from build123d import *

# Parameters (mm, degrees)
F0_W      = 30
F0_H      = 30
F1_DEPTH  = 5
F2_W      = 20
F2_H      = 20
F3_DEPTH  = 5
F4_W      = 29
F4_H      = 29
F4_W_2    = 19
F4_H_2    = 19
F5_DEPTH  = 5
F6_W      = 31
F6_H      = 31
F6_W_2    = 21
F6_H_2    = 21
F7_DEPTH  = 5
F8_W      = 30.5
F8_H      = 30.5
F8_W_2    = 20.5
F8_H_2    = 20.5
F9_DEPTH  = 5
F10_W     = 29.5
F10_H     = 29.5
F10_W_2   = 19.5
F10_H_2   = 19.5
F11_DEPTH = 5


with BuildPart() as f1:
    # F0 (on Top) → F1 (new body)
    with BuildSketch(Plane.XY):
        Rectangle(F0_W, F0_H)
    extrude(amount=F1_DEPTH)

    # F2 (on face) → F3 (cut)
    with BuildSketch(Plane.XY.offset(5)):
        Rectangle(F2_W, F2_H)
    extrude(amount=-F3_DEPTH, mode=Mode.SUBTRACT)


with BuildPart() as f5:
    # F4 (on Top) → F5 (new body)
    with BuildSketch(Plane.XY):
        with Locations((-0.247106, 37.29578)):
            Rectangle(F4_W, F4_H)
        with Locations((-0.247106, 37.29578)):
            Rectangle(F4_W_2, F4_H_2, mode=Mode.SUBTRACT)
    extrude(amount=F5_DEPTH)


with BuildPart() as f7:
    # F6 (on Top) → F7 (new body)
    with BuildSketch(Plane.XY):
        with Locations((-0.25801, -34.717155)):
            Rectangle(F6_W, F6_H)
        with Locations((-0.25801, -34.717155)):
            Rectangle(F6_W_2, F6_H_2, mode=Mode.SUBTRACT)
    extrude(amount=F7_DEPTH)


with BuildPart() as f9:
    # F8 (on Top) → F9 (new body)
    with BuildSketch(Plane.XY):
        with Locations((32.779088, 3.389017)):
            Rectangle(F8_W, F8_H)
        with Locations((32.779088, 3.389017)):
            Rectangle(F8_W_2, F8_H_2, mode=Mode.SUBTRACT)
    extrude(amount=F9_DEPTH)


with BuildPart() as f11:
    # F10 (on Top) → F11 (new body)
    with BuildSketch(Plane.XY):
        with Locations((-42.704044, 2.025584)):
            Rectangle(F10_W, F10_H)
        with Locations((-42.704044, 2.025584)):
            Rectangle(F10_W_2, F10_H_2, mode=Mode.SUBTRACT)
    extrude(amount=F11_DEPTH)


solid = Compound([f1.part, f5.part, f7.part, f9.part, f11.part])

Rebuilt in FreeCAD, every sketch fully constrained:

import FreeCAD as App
import Part
import Sketcher

V = App.Vector
Q = App.Units.Quantity


def add_polygon(sketch, points):
    """Adds a closed chain of lines whose ends are joined by coincident constraints."""
    first, n = sketch.GeometryCount, len(points)
    for a, b in zip(points, points[1:] + points[:1]):
        sketch.addGeometry(Part.LineSegment(App.Vector(*a, 0), App.Vector(*b, 0)), False)
    for i in range(n):
        sketch.addConstraint(Sketcher.Constraint("Coincident", first + i, 2, first + (i + 1) % n, 1))

doc = App.newDocument("Part")
params = doc.addObject("Spreadsheet::Sheet", "Params")
for row, (alias, value) in enumerate([
    ("sketch1_width", "30 mm"),
    ("pad1_length", "5 mm"),
    ("sketch2_width", "20 mm"),
    ("pocket1_length", "5 mm"),
    ("sketch3_width", "29 mm"),
    ("sketch3_width2", "19 mm"),
    ("pad2_length", "5 mm"),
    ("sketch4_width", "31 mm"),
    ("sketch4_width2", "21 mm"),
    ("pad3_length", "5 mm"),
    ("sketch5_width", "30.5 mm"),
    ("sketch5_width2", "20.5 mm"),
    ("pad4_length", "5 mm"),
    ("sketch6_width", "29.5 mm"),
    ("sketch6_width2", "19.5 mm"),
    ("pad5_length", "5 mm"),
], start=1):
    params.set(f"A{row}", alias)
    params.set(f"B{row}", "=" + value)
    params.setAlias(f"B{row}", alias)

body = doc.addObject("PartDesign::Body", "Body")

# Sketch on XY plane
sketch1 = body.newObject("Sketcher::SketchObject", "Sketch")
sketch1.AttachmentSupport = (doc.getObject("XY_Plane"), [""])
sketch1.MapMode = "FlatFace"
add_polygon(sketch1, [(-15, 15), (-15, -15), (15, -15), (15, 15)])  # lines 0-3
sketch1.addConstraint([
    Sketcher.Constraint("Vertical", 0),
    Sketcher.Constraint("Horizontal", 1),
    Sketcher.Constraint("Vertical", 2),
    Sketcher.Constraint("Horizontal", 3),
    Sketcher.Constraint("Symmetric", 0, 2, 2, 2, -1, 1),
    Sketcher.Constraint("Equal", 3, 0),
    Sketcher.Constraint("DistanceX", 1, 1, 1, 2, Q("30 mm")),
])
sketch1.setExpression("Constraints[10]", "Params.sketch1_width")
pad1 = body.newObject("PartDesign::Pad", "Pad")
pad1.Profile = sketch1
pad1.setExpression("Length", "Params.pad1_length")

# Sketch on XY plane
sketch2 = body.newObject("Sketcher::SketchObject", "Sketch001")
sketch2.AttachmentSupport = (doc.getObject("XY_Plane"), [""])
sketch2.MapMode = "FlatFace"
sketch2.AttachmentOffset = App.Placement(V(0, 0, 5), App.Rotation())
add_polygon(sketch2, [(-10, 10), (-10, -10), (10, -10), (10, 10)])  # lines 0-3
sketch2.addConstraint([
    Sketcher.Constraint("Vertical", 0),
    Sketcher.Constraint("Horizontal", 1),
    Sketcher.Constraint("Vertical", 2),
    Sketcher.Constraint("Horizontal", 3),
    Sketcher.Constraint("Symmetric", 0, 2, 2, 2, -1, 1),
    Sketcher.Constraint("Equal", 3, 0),
    Sketcher.Constraint("DistanceX", 1, 1, 1, 2, Q("20 mm")),
])
sketch2.setExpression("Constraints[10]", "Params.sketch2_width")
pocket1 = body.newObject("PartDesign::Pocket", "Pocket")
pocket1.Profile = sketch2
pocket1.setExpression("Length", "Params.pocket1_length")
body2 = doc.addObject("PartDesign::Body", "Body001")

# Sketch on XY plane
sketch3 = body2.newObject("Sketcher::SketchObject", "Sketch002")
sketch3.AttachmentSupport = (doc.getObject("XY_Plane001"), [""])
sketch3.MapMode = "FlatFace"
add_polygon(sketch3, [(-15, 52), (-15, 23), (14, 23), (14, 52)])  # lines 0-3
add_polygon(sketch3, [(9, 28), (-10, 28), (-10, 47), (9, 47)])  # lines 4-7
sketch3.addConstraint([
    Sketcher.Constraint("Vertical", 0),
    Sketcher.Constraint("Horizontal", 1),
    Sketcher.Constraint("Vertical", 2),
    Sketcher.Constraint("Horizontal", 3),
    Sketcher.Constraint("Horizontal", 4),
    Sketcher.Constraint("Vertical", 5),
    Sketcher.Constraint("Horizontal", 6),
    Sketcher.Constraint("Vertical", 7),
    Sketcher.Constraint("Equal", 3, 0),
    Sketcher.Constraint("Equal", 6, 5),
    Sketcher.Constraint("DistanceX", 1, 1, 1, 2, Q("29 mm")),
    Sketcher.Constraint("DistanceX", 4, 2, 4, 1, Q("19 mm")),
    Sketcher.Constraint("DistanceX", 0, 2, 4, 2, Q("5 mm")),
    Sketcher.Constraint("DistanceY", 0, 2, 4, 2, Q("5 mm")),
    Sketcher.Constraint("DistanceY", -1, 1, 0, 2, Q("22.79578 mm")),
    Sketcher.Constraint("DistanceX", 0, 2, -1, 1, Q("14.747106 mm")),
])
sketch3.setExpression("Constraints[18]", "Params.sketch3_width")
sketch3.setExpression("Constraints[19]", "Params.sketch3_width2")
pad2 = body2.newObject("PartDesign::Pad", "Pad001")
pad2.Profile = sketch3
pad2.setExpression("Length", "Params.pad2_length")
body3 = doc.addObject("PartDesign::Body", "Body002")

# Sketch on XY plane
sketch4 = body3.newObject("Sketcher::SketchObject", "Sketch003")
sketch4.AttachmentSupport = (doc.getObject("XY_Plane002"), [""])
sketch4.MapMode = "FlatFace"
add_polygon(sketch4, [(-16, -19), (-16, -50), (15, -50), (15, -19)])  # lines 0-3
add_polygon(sketch4, [(10, -45), (-11, -45), (-11, -24), (10, -24)])  # lines 4-7
sketch4.addConstraint([
    Sketcher.Constraint("Vertical", 0),
    Sketcher.Constraint("Horizontal", 1),
    Sketcher.Constraint("Vertical", 2),
    Sketcher.Constraint("Horizontal", 3),
    Sketcher.Constraint("Horizontal", 4),
    Sketcher.Constraint("Vertical", 5),
    Sketcher.Constraint("Horizontal", 6),
    Sketcher.Constraint("Vertical", 7),
    Sketcher.Constraint("Equal", 3, 0),
    Sketcher.Constraint("Equal", 6, 5),
    Sketcher.Constraint("DistanceX", 1, 1, 1, 2, Q("31 mm")),
    Sketcher.Constraint("DistanceX", 4, 2, 4, 1, Q("21 mm")),
    Sketcher.Constraint("DistanceX", 0, 2, 4, 2, Q("5 mm")),
    Sketcher.Constraint("DistanceY", 0, 2, 4, 2, Q("5 mm")),
    Sketcher.Constraint("DistanceX", 0, 2, -1, 1, Q("15.75801 mm")),
    Sketcher.Constraint("DistanceY", 0, 2, -1, 1, Q("50.217155 mm")),
])
sketch4.setExpression("Constraints[18]", "Params.sketch4_width")
sketch4.setExpression("Constraints[19]", "Params.sketch4_width2")
pad3 = body3.newObject("PartDesign::Pad", "Pad002")
pad3.Profile = sketch4
pad3.setExpression("Length", "Params.pad3_length")
body4 = doc.addObject("PartDesign::Body", "Body003")

# Sketch on XY plane
sketch5 = body4.newObject("Sketcher::SketchObject", "Sketch004")
sketch5.AttachmentSupport = (doc.getObject("XY_Plane003"), [""])
sketch5.MapMode = "FlatFace"
add_polygon(sketch5, [(18, 19), (18, -12), (48, -12), (48, 19)])  # lines 0-3
add_polygon(sketch5, [(43, -7), (23, -7), (23, 14), (43, 14)])  # lines 4-7
sketch5.addConstraint([
    Sketcher.Constraint("Vertical", 0),
    Sketcher.Constraint("Horizontal", 1),
    Sketcher.Constraint("Vertical", 2),
    Sketcher.Constraint("Horizontal", 3),
    Sketcher.Constraint("Horizontal", 4),
    Sketcher.Constraint("Vertical", 5),
    Sketcher.Constraint("Horizontal", 6),
    Sketcher.Constraint("Vertical", 7),
    Sketcher.Constraint("Equal", 3, 0),
    Sketcher.Constraint("Equal", 6, 5),
    Sketcher.Constraint("DistanceX", 1, 1, 1, 2, Q("30.5 mm")),
    Sketcher.Constraint("DistanceX", 4, 2, 4, 1, Q("20.5 mm")),
    Sketcher.Constraint("DistanceX", 0, 2, 4, 2, Q("5 mm")),
    Sketcher.Constraint("DistanceY", 0, 2, 4, 2, Q("5 mm")),
    Sketcher.Constraint("DistanceX", -1, 1, 0, 2, Q("17.529088 mm")),
    Sketcher.Constraint("DistanceY", 0, 2, -1, 1, Q("11.860983 mm")),
])
sketch5.setExpression("Constraints[18]", "Params.sketch5_width")
sketch5.setExpression("Constraints[19]", "Params.sketch5_width2")
pad4 = body4.newObject("PartDesign::Pad", "Pad003")
pad4.Profile = sketch5
pad4.setExpression("Length", "Params.pad4_length")
body5 = doc.addObject("PartDesign::Body", "Body004")

# Sketch on XY plane
sketch6 = body5.newObject("Sketcher::SketchObject", "Sketch005")
sketch6.AttachmentSupport = (doc.getObject("XY_Plane004"), [""])
sketch6.MapMode = "FlatFace"
add_polygon(sketch6, [(-57, 17), (-57, -13), (-28, -13), (-28, 17)])  # lines 0-3
add_polygon(sketch6, [(-33, -8), (-52, -8), (-52, 12), (-33, 12)])  # lines 4-7
sketch6.addConstraint([
    Sketcher.Constraint("Vertical", 0),
    Sketcher.Constraint("Horizontal", 1),
    Sketcher.Constraint("Vertical", 2),
    Sketcher.Constraint("Horizontal", 3),
    Sketcher.Constraint("Horizontal", 4),
    Sketcher.Constraint("Vertical", 5),
    Sketcher.Constraint("Horizontal", 6),
    Sketcher.Constraint("Vertical", 7),
    Sketcher.Constraint("Equal", 3, 0),
    Sketcher.Constraint("Equal", 6, 5),
    Sketcher.Constraint("DistanceX", 1, 1, 1, 2, Q("29.5 mm")),
    Sketcher.Constraint("DistanceX", 4, 2, 4, 1, Q("19.5 mm")),
    Sketcher.Constraint("DistanceX", 0, 2, 4, 2, Q("5 mm")),
    Sketcher.Constraint("DistanceY", 0, 2, 4, 2, Q("5 mm")),
    Sketcher.Constraint("DistanceX", 0, 2, -1, 1, Q("57.454044 mm")),
    Sketcher.Constraint("DistanceY", 0, 2, -1, 1, Q("12.724416 mm")),
])
sketch6.setExpression("Constraints[18]", "Params.sketch6_width")
sketch6.setExpression("Constraints[19]", "Params.sketch6_width2")
pad5 = body5.newObject("PartDesign::Pad", "Pad004")
pad5.Profile = sketch6
pad5.setExpression("Length", "Params.pad5_length")

doc.recompute()
